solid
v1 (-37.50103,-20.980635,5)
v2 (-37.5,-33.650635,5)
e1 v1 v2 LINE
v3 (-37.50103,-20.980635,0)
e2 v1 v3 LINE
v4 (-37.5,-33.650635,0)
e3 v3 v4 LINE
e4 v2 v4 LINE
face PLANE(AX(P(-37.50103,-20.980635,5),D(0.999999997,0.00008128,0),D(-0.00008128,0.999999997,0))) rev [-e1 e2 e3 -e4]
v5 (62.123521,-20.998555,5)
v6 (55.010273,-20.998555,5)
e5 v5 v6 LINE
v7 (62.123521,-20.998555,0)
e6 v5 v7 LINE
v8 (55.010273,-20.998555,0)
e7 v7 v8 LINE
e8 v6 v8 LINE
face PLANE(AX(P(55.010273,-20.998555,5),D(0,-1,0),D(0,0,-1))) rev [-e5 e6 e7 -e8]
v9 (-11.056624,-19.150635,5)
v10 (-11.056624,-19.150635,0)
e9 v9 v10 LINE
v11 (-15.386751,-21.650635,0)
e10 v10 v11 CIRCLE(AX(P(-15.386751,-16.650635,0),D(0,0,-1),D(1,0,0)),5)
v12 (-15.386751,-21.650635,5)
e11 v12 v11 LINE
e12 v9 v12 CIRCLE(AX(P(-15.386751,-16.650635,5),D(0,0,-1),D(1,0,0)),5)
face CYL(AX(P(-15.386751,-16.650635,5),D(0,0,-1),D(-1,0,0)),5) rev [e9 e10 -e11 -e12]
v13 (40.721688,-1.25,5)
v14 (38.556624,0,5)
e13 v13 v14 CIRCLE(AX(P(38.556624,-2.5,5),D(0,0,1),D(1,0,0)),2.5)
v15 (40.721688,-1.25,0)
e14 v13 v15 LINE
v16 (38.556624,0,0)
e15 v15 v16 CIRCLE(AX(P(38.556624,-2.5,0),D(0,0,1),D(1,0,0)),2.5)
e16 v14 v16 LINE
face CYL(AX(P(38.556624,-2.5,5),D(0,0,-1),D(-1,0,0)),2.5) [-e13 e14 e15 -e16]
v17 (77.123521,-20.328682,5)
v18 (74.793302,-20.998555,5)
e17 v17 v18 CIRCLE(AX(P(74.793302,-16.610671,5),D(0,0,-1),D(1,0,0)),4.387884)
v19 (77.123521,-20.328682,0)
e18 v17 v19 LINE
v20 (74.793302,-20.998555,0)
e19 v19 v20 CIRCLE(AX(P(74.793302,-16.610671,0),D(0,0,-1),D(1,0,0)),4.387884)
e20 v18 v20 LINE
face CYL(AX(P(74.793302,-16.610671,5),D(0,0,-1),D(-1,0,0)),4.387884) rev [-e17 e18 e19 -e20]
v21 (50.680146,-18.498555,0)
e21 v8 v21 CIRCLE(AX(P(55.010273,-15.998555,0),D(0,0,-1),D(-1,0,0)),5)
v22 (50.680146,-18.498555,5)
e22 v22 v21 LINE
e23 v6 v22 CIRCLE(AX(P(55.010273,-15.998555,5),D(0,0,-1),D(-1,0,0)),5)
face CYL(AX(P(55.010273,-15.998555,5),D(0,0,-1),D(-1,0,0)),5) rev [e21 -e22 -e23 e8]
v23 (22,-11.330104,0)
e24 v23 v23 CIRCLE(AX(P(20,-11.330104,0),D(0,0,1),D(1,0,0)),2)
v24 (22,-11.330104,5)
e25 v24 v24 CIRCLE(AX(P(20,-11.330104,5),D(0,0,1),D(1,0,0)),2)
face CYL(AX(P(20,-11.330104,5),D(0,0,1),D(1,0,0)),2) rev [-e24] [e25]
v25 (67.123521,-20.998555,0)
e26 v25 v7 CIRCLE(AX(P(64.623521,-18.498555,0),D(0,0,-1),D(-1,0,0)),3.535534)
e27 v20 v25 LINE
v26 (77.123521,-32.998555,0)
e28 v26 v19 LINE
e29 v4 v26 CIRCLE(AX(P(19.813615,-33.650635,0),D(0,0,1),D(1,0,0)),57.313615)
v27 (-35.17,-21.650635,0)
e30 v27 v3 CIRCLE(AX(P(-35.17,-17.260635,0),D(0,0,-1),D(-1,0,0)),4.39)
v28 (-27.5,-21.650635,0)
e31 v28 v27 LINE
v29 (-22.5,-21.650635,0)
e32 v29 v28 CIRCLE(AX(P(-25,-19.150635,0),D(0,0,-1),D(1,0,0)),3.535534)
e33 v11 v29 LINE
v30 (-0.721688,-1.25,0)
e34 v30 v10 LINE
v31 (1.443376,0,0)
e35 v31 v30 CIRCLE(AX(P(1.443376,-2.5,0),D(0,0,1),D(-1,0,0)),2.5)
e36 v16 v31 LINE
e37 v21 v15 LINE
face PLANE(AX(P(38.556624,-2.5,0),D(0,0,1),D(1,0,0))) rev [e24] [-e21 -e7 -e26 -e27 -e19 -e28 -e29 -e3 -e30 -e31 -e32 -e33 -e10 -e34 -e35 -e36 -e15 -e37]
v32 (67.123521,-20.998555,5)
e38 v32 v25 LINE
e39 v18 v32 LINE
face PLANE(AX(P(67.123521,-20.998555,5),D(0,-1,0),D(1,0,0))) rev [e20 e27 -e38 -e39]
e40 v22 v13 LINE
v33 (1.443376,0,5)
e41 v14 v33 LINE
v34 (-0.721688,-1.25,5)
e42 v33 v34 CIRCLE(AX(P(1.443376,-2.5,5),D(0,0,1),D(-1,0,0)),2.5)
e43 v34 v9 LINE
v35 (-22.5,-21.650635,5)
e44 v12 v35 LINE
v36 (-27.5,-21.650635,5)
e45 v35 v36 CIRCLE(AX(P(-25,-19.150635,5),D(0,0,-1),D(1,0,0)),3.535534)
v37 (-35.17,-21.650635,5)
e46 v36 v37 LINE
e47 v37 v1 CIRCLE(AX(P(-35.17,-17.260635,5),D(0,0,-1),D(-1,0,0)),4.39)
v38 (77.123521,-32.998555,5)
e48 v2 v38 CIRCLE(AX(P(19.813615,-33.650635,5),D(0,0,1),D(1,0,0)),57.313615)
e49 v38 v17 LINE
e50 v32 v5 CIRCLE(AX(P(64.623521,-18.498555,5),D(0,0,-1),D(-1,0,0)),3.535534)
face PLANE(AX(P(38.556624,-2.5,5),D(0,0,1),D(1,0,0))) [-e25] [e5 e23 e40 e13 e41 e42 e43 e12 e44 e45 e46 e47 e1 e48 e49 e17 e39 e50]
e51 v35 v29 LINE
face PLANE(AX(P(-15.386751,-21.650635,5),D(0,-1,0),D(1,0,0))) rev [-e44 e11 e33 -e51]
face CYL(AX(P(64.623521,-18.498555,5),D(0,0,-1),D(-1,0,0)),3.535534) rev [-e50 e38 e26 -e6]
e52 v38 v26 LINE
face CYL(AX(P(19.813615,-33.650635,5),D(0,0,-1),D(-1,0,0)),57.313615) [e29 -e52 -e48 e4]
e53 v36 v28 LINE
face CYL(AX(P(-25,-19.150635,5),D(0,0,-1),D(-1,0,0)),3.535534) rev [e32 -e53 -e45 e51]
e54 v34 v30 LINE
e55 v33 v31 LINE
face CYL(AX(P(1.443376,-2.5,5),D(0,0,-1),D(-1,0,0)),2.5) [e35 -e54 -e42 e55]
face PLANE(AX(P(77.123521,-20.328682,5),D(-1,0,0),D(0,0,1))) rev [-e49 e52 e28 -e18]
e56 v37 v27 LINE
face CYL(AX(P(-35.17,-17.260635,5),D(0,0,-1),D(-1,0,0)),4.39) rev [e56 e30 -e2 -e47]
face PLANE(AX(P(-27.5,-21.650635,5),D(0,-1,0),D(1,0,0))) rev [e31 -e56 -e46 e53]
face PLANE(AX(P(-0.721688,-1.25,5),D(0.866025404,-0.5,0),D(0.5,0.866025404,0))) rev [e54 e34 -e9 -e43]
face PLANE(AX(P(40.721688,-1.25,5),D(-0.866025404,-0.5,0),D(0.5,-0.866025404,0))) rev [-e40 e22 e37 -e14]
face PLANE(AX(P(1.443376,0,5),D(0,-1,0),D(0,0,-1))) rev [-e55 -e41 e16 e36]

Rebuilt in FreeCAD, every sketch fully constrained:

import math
import FreeCAD as App
import Part
import Sketcher
Q = App.Units.Quantity

doc = App.newDocument("Part")
body = doc.addObject("PartDesign::Body", "Body")

# Sketch on XY plane
sketch1 = body.newObject("Sketcher::SketchObject", "Sketch")
sketch1.AttachmentSupport = (doc.getObject("XY_Plane"), [""])
sketch1.MapMode = "FlatFace"
sketch1.addGeometry([
    Part.LineSegment(App.Vector(38.6, 0, 0), App.Vector(1.4, 0, 0)),  # 0
    Part.ArcOfCircle(Part.Circle(App.Vector(1.4, -2.5, 0), App.Vector(0, 0, 1), 2.5), math.radians(90), math.radians(150)),  # 1
    Part.LineSegment(App.Vector(-0.7, -1.2, 0), App.Vector(-11.1, -19.2, 0)),  # 2
    Part.ArcOfCircle(Part.Circle(App.Vector(-15.4, -16.7, 0), App.Vector(0, 0, 1), 5), math.radians(-90), math.radians(-30)),  # 3
    Part.LineSegment(App.Vector(-15.4, -21.7, 0), App.Vector(-22.5, -21.7, 0)),  # 4
    Part.ArcOfCircle(Part.Circle(App.Vector(-25, -19.2, 0), App.Vector(0, 0, 1), 3.5), math.radians(-135), math.radians(-45)),  # 5
    Part.LineSegment(App.Vector(-27.5, -21.7, 0), App.Vector(-35.2, -21.7, 0)),  # 6
    Part.ArcOfCircle(Part.Circle(App.Vector(-35.2, -17.3, 0), App.Vector(0, 0, 1), 4.4), math.radians(-122), math.radians(-90)),  # 7
    Part.LineSegment(App.Vector(-37.5, -21, 0), App.Vector(-37.5, -33.7, 0)),  # 8
    Part.ArcOfCircle(Part.Circle(App.Vector(19.8, -33.7, 0), App.Vector(0, 0, 1), 57.3), math.radians(180), math.radians(361)),  # 9
    Part.LineSegment(App.Vector(77.1, -33, 0), App.Vector(77.1, -20.3, 0)),  # 10
    Part.ArcOfCircle(Part.Circle(App.Vector(74.8, -16.6, 0), App.Vector(0, 0, 1), 4.4), math.radians(-90), math.radians(-58)),  # 11
    Part.LineSegment(App.Vector(74.8, -21, 0), App.Vector(67.1, -21, 0)),  # 12
    Part.ArcOfCircle(Part.Circle(App.Vector(64.6, -18.5, 0), App.Vector(0, 0, 1), 3.5), math.radians(-135), math.radians(-45)),  # 13
    Part.LineSegment(App.Vector(62.1, -21, 0), App.Vector(55, -21, 0)),  # 14
    Part.ArcOfCircle(Part.Circle(App.Vector(55, -16, 0), App.Vector(0, 0, 1), 5), math.radians(-150), math.radians(-90)),  # 15
    Part.LineSegment(App.Vector(50.7, -18.5, 0), App.Vector(40.7, -1.2, 0)),  # 16
    Part.ArcOfCircle(Part.Circle(App.Vector(38.6, -2.5, 0), App.Vector(0, 0, 1), 2.5), math.radians(30), math.radians(90)),  # 17
], False)
sketch1.addConstraint([
    Sketcher.Constraint("Tangent", 0, 2, 1, 1),
    Sketcher.Constraint("Tangent", 1, 2, 2, 1),
    Sketcher.Constraint("Tangent", 2, 2, 3, 2),
    Sketcher.Constraint("Tangent", 3, 1, 4, 1),
    Sketcher.Constraint("Coincident", 4, 2, 5, 2),
    Sketcher.Constraint("Coincident", 5, 1, 6, 1),
    Sketcher.Constraint("Tangent", 6, 2, 7, 2),
    Sketcher.Constraint("Coincident", 7, 1, 8, 1),
    Sketcher.Constraint("Coincident", 8, 2, 9, 1),
    Sketcher.Constraint("Coincident", 9, 2, 10, 1),
    Sketcher.Constraint("Coincident", 10, 2, 11, 2),
    Sketcher.Constraint("Tangent", 11, 1, 12, 1),
    Sketcher.Constraint("Coincident", 12, 2, 13, 2),
    Sketcher.Constraint("Coincident", 13, 1, 14, 1),
    Sketcher.Constraint("Tangent", 14, 2, 15, 2),
    Sketcher.Constraint("Tangent", 15, 1, 16, 1),
    Sketcher.Constraint("Tangent", 16, 2, 17, 1),
    Sketcher.Constraint("Tangent", 17, 2, 0, 1),
    Sketcher.Constraint("Horizontal", 0),
    Sketcher.Constraint("Horizontal", 4),
    Sketcher.Constraint("Horizontal", 6),
    Sketcher.Constraint("Vertical", 10),
    Sketcher.Constraint("Horizontal", 12),
    Sketcher.Constraint("Horizontal", 14),
    Sketcher.Constraint("Equal", 5, 13),
    Sketcher.Constraint("Equal", 3, 15),
    Sketcher.Constraint("Equal", 1, 17),
    Sketcher.Constraint("PointOnObject", 0, 2, -1),
    Sketcher.Constraint("Horizontal", 5, 3, 2, 2),
    Sketcher.Constraint("Horizontal", 4, 2, 5, 1),
    Sketcher.Constraint("Horizontal", 9, 3, 8, 2),
    Sketcher.Constraint("Horizontal", 12, 2, 13, 1),
    Sketcher.Constraint("Horizontal", 13, 3, 15, 1),
    Sketcher.Constraint("Horizontal", 1, 2, 16, 2),
    Sketcher.Constraint("Equal", 4, 14),
    Sketcher.Constraint("Radius", 3, 5.0),
    Sketcher.Constraint("Radius", 1, 2.5),
    Sketcher.Constraint("Angle", 2, Q("-120 deg")),
    Sketcher.Constraint("Radius", 7, 4.39),
    Sketcher.Constraint("DistanceX", 5, 3, -1, 1, 25.0),
    Sketcher.Constraint("DistanceY", 9, 3, 3, 3, 17.0),
    Sketcher.Constraint("DistanceX", 5, 1, 4, 2, 5.0),
    Sketcher.Constraint("DistanceX", 8, 2, 5, 1, 10.0),
    Sketcher.Constraint("DistanceY", 9, 2, 15, 3, 17.0),
    Sketcher.Constraint("DistanceX", 12, 2, 10, 2, 10.0),
    Sketcher.Constraint("DistanceX", 6, 2, 6, 1, 7.67),
    Sketcher.Constraint("DistanceX", 2, 2, 1, 3, 12.5),
    Sketcher.Constraint("Distance", 8, 12.67),
    Sketcher.Constraint("Radius", 9, 57.313615),
    Sketcher.Constraint("Radius", 11, 4.387884),
    Sketcher.Constraint("DistanceX", 0, 2, 0, 1, 37.113249),
    Sketcher.Constraint("DistanceX", 4, 2, 4, 1, 7.113249),
    Sketcher.Constraint("DistanceX", 12, 2, 12, 1, 7.669781),
])
pad1 = body.newObject("PartDesign::Pad", "Pad")
pad1.Profile = sketch1
pad1.Length = 5

# Sketch on XY plane
sketch2 = body.newObject("Sketcher::SketchObject", "Sketch001")
sketch2.AttachmentSupport = (doc.getObject("XY_Plane"), [""])
sketch2.MapMode = "FlatFace"
sketch2.AttachmentOffset = App.Placement(App.Vector(0, 0, 5), App.Rotation())
sketch2.addGeometry(Part.Circle(App.Vector(20, -11.3, 0), App.Vector(0, 0, 1), 2), False)
sketch2.addConstraint([
    Sketcher.Constraint("Diameter", 0, 4.0),
    Sketcher.Constraint("DistanceX", -1, 1, 0, 3, 20.0),
    Sketcher.Constraint("DistanceY", 0, 3, -1, 1, 11.330104),
])
doc.recompute()
hole = body.newObject("PartDesign::Hole", "Hole")
hole.Profile = sketch2
hole.ThreadType = "None"
hole.Diameter = 4
hole.DepthType = "Dimension"
hole.Depth = 5
hole.DrillPoint = "Angled"
hole.DrillPointAngle = 118

doc.recompute()
